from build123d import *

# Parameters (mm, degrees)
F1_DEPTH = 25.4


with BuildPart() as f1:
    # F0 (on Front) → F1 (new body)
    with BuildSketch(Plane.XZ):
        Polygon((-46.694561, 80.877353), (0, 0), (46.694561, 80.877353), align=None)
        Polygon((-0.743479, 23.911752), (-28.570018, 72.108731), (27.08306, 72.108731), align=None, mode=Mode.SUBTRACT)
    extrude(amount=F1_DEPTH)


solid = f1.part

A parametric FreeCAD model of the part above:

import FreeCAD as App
import Part
import Sketcher
Q = App.Units.Quantity


def add_polygon(sketch, points):
    """Adds a closed chain of lines whose ends are joined by coincident constraints."""
    first, n = sketch.GeometryCount, len(points)
    for a, b in zip(points, points[1:] + points[:1]):
        sketch.addGeometry(Part.LineSegment(App.Vector(*a, 0), App.Vector(*b, 0)), False)
    for i in range(n):
        sketch.addConstraint(Sketcher.Constraint("Coincident", first + i, 2, first + (i + 1) % n, 1))

doc = App.newDocument("Part")
body = doc.addObject("PartDesign::Body", "Body")

sketch1 = body.newObject("Sketcher::SketchObject", "Sketch")
sketch1.AttachmentSupport = (doc.getObject("XZ_Plane"), [""])
sketch1.MapMode = "FlatFace"
add_polygon(sketch1, [(-47, 81), (0, 0), (47, 81)])
add_polygon(sketch1, [(27, 72), (-1, 24), (-29, 72)])
sketch1.addConstraint([
    Sketcher.Constraint("Horizontal", 2),
    Sketcher.Constraint("Horizontal", 5),
    Sketcher.Constraint("Coincident", 0, 2, -1, 1),
    Sketcher.Constraint("Parallel", 1, 3),
    Sketcher.Constraint("Parallel", 0, 4),
    Sketcher.Constraint("Equal", 0, 1),
    Sketcher.Constraint("Angle", 0, Q("-60 deg")),
    Sketcher.Constraint("DistanceX", 2, 2, 2, 1, 93.389122),
    Sketcher.Constraint("DistanceY", 3, 2, 2, 2, 56.965601),
    Sketcher.Constraint("DistanceX", 5, 2, 1, 2, 19.611501),
    Sketcher.Constraint("DistanceX", 5, 1, 5, 2, 55.653078),
])
pad1 = body.newObject("PartDesign::Pad", "Pad")
pad1.Profile = sketch1
pad1.Length = Q("1 in")

doc.recompute()
